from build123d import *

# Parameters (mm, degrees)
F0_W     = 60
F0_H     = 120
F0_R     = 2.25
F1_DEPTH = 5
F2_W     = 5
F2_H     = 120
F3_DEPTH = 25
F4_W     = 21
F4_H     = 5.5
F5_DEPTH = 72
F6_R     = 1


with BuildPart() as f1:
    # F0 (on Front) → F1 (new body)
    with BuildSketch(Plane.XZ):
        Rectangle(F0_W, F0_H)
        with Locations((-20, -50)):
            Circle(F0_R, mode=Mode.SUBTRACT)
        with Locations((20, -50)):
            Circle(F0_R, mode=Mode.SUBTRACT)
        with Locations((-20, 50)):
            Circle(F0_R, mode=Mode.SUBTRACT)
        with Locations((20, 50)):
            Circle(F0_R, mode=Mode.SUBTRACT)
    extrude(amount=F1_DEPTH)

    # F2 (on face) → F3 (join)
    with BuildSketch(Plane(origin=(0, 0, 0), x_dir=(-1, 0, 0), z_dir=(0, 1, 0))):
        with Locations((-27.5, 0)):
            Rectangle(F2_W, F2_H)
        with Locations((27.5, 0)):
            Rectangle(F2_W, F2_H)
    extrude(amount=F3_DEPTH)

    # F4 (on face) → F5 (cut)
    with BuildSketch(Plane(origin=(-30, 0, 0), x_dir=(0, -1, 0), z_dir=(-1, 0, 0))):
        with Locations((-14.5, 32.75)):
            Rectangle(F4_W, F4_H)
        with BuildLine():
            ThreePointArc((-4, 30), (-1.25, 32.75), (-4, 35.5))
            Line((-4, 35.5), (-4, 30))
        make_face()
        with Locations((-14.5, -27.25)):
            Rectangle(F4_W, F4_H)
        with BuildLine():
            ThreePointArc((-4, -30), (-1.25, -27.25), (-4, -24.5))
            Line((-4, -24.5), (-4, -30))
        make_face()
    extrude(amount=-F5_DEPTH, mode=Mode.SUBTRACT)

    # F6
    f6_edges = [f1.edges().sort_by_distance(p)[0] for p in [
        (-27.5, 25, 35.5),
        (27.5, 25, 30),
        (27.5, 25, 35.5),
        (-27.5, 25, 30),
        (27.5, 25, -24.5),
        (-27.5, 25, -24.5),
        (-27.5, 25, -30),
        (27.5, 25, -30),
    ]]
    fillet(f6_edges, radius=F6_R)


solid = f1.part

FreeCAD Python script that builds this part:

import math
import FreeCAD as App
import Part
import Sketcher

V = App.Vector


def edges_at(feature, points):
    """Names of the edges that pass closest to the given points."""
    edges = feature.Shape.Edges
    near = lambda p: min(range(len(edges)), key=lambda i: edges[i].distToShape(Part.Vertex(*p))[0])
    return sorted({f"Edge{near(p) + 1}" for p in points})


def add_polygon(sketch, points):
    """Adds a closed chain of lines whose ends are joined by coincident constraints."""
    first, n = sketch.GeometryCount, len(points)
    for a, b in zip(points, points[1:] + points[:1]):
        sketch.addGeometry(Part.LineSegment(App.Vector(*a, 0), App.Vector(*b, 0)), False)
    for i in range(n):
        sketch.addConstraint(Sketcher.Constraint("Coincident", first + i, 2, first + (i + 1) % n, 1))

doc = App.newDocument("Part")
params = doc.addObject("Spreadsheet::Sheet", "Params")
for row, (alias, value) in enumerate([
    ("sketch1_diameter", "4.5 mm"),
    ("sketch1_width", "60 mm"),
    ("sketch1_height", "120 mm"),
    ("pad1_length", "5 mm"),
    ("sketch2_width", "5 mm"),
    ("sketch2_height", "120 mm"),
    ("pad2_length", "25 mm"),
    ("sketch3_width", "21 mm"),
    ("sketch3_radius", "2.75 mm"),
    ("pocket1_length", "72 mm"),
    ("fillet_radius", "1 mm"),
], start=1):
    params.set(f"A{row}", alias)
    params.set(f"B{row}", "=" + value)
    params.setAlias(f"B{row}", alias)

body = doc.addObject("PartDesign::Body", "Body")

sketch1 = body.newObject("Sketcher::SketchObject", "Sketch")
sketch1.AttachmentSupport = (doc.getObject("XZ_Plane"), [""])
sketch1.MapMode = "FlatFace"
add_polygon(sketch1, [(-30, 60), (-30, -60), (30, -60), (30, 60)])
sketch1.addGeometry(Part.Circle(V(-20, -50, 0), V(0, 0, 1), 2.25), False)
sketch1.addGeometry(Part.Circle(V(20, -50, 0), V(0, 0, 1), 2.25), False)
sketch1.addGeometry(Part.Circle(V(-20, 50, 0), V(0, 0, 1), 2.25), False)
sketch1.addGeometry(Part.Circle(V(20, 50, 0), V(0, 0, 1), 2.25), False)
sketch1.addConstraint([
    Sketcher.Constraint("Vertical", 0),
    Sketcher.Constraint("Horizontal", 1),
    Sketcher.Constraint("Vertical", 2),
    Sketcher.Constraint("Horizontal", 3),
    Sketcher.Constraint("Equal", 4, 5),
    Sketcher.Constraint("Equal", 5, 6),
    Sketcher.Constraint("Equal", 6, 7),
    Sketcher.Constraint("Symmetric", 5, 3, 6, 3, -1, 1),
    Sketcher.Constraint("Symmetric", 4, 3, 7, 3, -1, 1),
    Sketcher.Constraint("Symmetric", 0, 2, 2, 2, -1, 1),
    Sketcher.Constraint("Symmetric", 4, 3, 5, 3, -2),
    Sketcher.Constraint("Diameter", 4, 4.5),
    Sketcher.Constraint("DistanceX", 1, 1, 1, 2, 60.0),
    Sketcher.Constraint("DistanceY", 0, 2, 0, 1, 120.0),
    Sketcher.Constraint("DistanceX", 4, 3, -1, 1, 20.0),
    Sketcher.Constraint("DistanceY", 4, 3, -1, 1, 50.0),
])
sketch1.setExpression("Constraints[15]", "Params.sketch1_diameter")
sketch1.setExpression("Constraints[16]", "Params.sketch1_width")
sketch1.setExpression("Constraints[17]", "Params.sketch1_height")
pad1 = body.newObject("PartDesign::Pad", "Pad")
pad1.Profile = sketch1
pad1.setExpression("Length", "Params.pad1_length")

sketch2 = body.newObject("Sketcher::SketchObject", "Sketch001")
sketch2.AttachmentSupport = (doc.getObject("XZ_Plane"), [""])
sketch2.MapMode = "FlatFace"
add_polygon(sketch2, [(30, 60), (30, -60), (25, -60), (25, 60)])
add_polygon(sketch2, [(-25, 60), (-25, -60), (-30, -60), (-30, 60)])
sketch2.addConstraint([
    Sketcher.Constraint("Vertical", 0),
    Sketcher.Constraint("Horizontal", 1),
    Sketcher.Constraint("Vertical", 2),
    Sketcher.Constraint("Horizontal", 3),
    Sketcher.Constraint("Vertical", 4),
    Sketcher.Constraint("Horizontal", 5),
    Sketcher.Constraint("Vertical", 6),
    Sketcher.Constraint("Horizontal", 7),
    Sketcher.Constraint("Symmetric", 2, 2, 4, 2, -1, 1),
    Sketcher.Constraint("Symmetric", 0, 2, 6, 2, -1, 1),
    Sketcher.Constraint("Horizontal", 1, 2, 4, 2),
    Sketcher.Constraint("DistanceX", 1, 2, 1, 1, 5.0),
    Sketcher.Constraint("DistanceY", 0, 2, 0, 1, 120.0),
    Sketcher.Constraint("DistanceX", -1, 1, 0, 2, 30.0),
])
sketch2.setExpression("Constraints[19]", "Params.sketch2_width")
sketch2.setExpression("Constraints[20]", "Params.sketch2_height")
pad2 = body.newObject("PartDesign::Pad", "Pad001")
pad2.Profile = sketch2
pad2.setExpression("Length", "Params.pad2_length")
pad2.Reversed = True

sketch3 = body.newObject("Sketcher::SketchObject", "Sketch002")
sketch3.AttachmentSupport = (doc.getObject("YZ_Plane"), [""])
sketch3.MapMode = "FlatFace"
sketch3.AttachmentOffset = App.Placement(V(0, 0, -30), App.Rotation())
sketch3.addGeometry([
    Part.LineSegment(V(25, 35.5, 0), V(25, 30, 0)),
    Part.LineSegment(V(25, 30, 0), V(4, 30, 0)),
    Part.ArcOfCircle(Part.Circle(V(4, 32.75, 0), V(0, 0, 1), 2.75), math.radians(90), math.radians(270)),
    Part.LineSegment(V(4, 35.5, 0), V(25, 35.5, 0)),
    Part.LineSegment(V(25, -24.5, 0), V(25, -30, 0)),
    Part.LineSegment(V(25, -30, 0), V(4, -30, 0)),
    Part.ArcOfCircle(Part.Circle(V(4, -27.25, 0), V(0, 0, 1), 2.75), math.radians(90), math.radians(270)),
    Part.LineSegment(V(4, -24.5, 0), V(25, -24.5, 0)),
], False)
sketch3.addConstraint([
    Sketcher.Constraint("Coincident", 0, 2, 1, 1),
    Sketcher.Constraint("Tangent", 1, 2, 2, 2),
    Sketcher.Constraint("Tangent", 2, 1, 3, 1),
    Sketcher.Constraint("Coincident", 3, 2, 0, 1),
    Sketcher.Constraint("Coincident", 4, 2, 5, 1),
    Sketcher.Constraint("Tangent", 5, 2, 6, 2),
    Sketcher.Constraint("Tangent", 6, 1, 7, 1),
    Sketcher.Constraint("Coincident", 7, 2, 4, 1),
    Sketcher.Constraint("Vertical", 0),
    Sketcher.Constraint("Horizontal", 1),
    Sketcher.Constraint("Horizontal", 3),
    Sketcher.Constraint("Vertical", 4),
    Sketcher.Constraint("Horizontal", 5),
    Sketcher.Constraint("Horizontal", 7),
    Sketcher.Constraint("Equal", 2, 6),
    Sketcher.Constraint("Symmetric", 0, 2, 4, 2, -1),
    Sketcher.Constraint("Vertical", 2, 3, 6, 3),
    Sketcher.Constraint("DistanceX", 1, 2, 1, 1, 21.0),
    Sketcher.Constraint("Radius", 2, 2.75),
    Sketcher.Constraint("DistanceX", -1, 1, 2, 3, 4.0),
    Sketcher.Constraint("DistanceY", -1, 1, 0, 2, 30.0),
])
sketch3.setExpression("Constraints[17]", "Params.sketch3_width")
sketch3.setExpression("Constraints[18]", "Params.sketch3_radius")
pocket1 = body.newObject("PartDesign::Pocket", "Pocket")
pocket1.Profile = sketch3
pocket1.setExpression("Length", "Params.pocket1_length")
pocket1.Reversed = True
doc.recompute()

fillet = body.newObject("PartDesign::Fillet", "Fillet")
fillet.Base = (pocket1, edges_at(pocket1, [
    (-27.5, 25, 35.5),
    (27.5, 25, 30),
    (27.5, 25, 35.5),
    (-27.5, 25, 30),
    (27.5, 25, -24.5),
    (-27.5, 25, -24.5),
    (-27.5, 25, -30),
    (27.5, 25, -30),
]))
fillet.setExpression("Radius", "Params.fillet_radius")

doc.recompute()
